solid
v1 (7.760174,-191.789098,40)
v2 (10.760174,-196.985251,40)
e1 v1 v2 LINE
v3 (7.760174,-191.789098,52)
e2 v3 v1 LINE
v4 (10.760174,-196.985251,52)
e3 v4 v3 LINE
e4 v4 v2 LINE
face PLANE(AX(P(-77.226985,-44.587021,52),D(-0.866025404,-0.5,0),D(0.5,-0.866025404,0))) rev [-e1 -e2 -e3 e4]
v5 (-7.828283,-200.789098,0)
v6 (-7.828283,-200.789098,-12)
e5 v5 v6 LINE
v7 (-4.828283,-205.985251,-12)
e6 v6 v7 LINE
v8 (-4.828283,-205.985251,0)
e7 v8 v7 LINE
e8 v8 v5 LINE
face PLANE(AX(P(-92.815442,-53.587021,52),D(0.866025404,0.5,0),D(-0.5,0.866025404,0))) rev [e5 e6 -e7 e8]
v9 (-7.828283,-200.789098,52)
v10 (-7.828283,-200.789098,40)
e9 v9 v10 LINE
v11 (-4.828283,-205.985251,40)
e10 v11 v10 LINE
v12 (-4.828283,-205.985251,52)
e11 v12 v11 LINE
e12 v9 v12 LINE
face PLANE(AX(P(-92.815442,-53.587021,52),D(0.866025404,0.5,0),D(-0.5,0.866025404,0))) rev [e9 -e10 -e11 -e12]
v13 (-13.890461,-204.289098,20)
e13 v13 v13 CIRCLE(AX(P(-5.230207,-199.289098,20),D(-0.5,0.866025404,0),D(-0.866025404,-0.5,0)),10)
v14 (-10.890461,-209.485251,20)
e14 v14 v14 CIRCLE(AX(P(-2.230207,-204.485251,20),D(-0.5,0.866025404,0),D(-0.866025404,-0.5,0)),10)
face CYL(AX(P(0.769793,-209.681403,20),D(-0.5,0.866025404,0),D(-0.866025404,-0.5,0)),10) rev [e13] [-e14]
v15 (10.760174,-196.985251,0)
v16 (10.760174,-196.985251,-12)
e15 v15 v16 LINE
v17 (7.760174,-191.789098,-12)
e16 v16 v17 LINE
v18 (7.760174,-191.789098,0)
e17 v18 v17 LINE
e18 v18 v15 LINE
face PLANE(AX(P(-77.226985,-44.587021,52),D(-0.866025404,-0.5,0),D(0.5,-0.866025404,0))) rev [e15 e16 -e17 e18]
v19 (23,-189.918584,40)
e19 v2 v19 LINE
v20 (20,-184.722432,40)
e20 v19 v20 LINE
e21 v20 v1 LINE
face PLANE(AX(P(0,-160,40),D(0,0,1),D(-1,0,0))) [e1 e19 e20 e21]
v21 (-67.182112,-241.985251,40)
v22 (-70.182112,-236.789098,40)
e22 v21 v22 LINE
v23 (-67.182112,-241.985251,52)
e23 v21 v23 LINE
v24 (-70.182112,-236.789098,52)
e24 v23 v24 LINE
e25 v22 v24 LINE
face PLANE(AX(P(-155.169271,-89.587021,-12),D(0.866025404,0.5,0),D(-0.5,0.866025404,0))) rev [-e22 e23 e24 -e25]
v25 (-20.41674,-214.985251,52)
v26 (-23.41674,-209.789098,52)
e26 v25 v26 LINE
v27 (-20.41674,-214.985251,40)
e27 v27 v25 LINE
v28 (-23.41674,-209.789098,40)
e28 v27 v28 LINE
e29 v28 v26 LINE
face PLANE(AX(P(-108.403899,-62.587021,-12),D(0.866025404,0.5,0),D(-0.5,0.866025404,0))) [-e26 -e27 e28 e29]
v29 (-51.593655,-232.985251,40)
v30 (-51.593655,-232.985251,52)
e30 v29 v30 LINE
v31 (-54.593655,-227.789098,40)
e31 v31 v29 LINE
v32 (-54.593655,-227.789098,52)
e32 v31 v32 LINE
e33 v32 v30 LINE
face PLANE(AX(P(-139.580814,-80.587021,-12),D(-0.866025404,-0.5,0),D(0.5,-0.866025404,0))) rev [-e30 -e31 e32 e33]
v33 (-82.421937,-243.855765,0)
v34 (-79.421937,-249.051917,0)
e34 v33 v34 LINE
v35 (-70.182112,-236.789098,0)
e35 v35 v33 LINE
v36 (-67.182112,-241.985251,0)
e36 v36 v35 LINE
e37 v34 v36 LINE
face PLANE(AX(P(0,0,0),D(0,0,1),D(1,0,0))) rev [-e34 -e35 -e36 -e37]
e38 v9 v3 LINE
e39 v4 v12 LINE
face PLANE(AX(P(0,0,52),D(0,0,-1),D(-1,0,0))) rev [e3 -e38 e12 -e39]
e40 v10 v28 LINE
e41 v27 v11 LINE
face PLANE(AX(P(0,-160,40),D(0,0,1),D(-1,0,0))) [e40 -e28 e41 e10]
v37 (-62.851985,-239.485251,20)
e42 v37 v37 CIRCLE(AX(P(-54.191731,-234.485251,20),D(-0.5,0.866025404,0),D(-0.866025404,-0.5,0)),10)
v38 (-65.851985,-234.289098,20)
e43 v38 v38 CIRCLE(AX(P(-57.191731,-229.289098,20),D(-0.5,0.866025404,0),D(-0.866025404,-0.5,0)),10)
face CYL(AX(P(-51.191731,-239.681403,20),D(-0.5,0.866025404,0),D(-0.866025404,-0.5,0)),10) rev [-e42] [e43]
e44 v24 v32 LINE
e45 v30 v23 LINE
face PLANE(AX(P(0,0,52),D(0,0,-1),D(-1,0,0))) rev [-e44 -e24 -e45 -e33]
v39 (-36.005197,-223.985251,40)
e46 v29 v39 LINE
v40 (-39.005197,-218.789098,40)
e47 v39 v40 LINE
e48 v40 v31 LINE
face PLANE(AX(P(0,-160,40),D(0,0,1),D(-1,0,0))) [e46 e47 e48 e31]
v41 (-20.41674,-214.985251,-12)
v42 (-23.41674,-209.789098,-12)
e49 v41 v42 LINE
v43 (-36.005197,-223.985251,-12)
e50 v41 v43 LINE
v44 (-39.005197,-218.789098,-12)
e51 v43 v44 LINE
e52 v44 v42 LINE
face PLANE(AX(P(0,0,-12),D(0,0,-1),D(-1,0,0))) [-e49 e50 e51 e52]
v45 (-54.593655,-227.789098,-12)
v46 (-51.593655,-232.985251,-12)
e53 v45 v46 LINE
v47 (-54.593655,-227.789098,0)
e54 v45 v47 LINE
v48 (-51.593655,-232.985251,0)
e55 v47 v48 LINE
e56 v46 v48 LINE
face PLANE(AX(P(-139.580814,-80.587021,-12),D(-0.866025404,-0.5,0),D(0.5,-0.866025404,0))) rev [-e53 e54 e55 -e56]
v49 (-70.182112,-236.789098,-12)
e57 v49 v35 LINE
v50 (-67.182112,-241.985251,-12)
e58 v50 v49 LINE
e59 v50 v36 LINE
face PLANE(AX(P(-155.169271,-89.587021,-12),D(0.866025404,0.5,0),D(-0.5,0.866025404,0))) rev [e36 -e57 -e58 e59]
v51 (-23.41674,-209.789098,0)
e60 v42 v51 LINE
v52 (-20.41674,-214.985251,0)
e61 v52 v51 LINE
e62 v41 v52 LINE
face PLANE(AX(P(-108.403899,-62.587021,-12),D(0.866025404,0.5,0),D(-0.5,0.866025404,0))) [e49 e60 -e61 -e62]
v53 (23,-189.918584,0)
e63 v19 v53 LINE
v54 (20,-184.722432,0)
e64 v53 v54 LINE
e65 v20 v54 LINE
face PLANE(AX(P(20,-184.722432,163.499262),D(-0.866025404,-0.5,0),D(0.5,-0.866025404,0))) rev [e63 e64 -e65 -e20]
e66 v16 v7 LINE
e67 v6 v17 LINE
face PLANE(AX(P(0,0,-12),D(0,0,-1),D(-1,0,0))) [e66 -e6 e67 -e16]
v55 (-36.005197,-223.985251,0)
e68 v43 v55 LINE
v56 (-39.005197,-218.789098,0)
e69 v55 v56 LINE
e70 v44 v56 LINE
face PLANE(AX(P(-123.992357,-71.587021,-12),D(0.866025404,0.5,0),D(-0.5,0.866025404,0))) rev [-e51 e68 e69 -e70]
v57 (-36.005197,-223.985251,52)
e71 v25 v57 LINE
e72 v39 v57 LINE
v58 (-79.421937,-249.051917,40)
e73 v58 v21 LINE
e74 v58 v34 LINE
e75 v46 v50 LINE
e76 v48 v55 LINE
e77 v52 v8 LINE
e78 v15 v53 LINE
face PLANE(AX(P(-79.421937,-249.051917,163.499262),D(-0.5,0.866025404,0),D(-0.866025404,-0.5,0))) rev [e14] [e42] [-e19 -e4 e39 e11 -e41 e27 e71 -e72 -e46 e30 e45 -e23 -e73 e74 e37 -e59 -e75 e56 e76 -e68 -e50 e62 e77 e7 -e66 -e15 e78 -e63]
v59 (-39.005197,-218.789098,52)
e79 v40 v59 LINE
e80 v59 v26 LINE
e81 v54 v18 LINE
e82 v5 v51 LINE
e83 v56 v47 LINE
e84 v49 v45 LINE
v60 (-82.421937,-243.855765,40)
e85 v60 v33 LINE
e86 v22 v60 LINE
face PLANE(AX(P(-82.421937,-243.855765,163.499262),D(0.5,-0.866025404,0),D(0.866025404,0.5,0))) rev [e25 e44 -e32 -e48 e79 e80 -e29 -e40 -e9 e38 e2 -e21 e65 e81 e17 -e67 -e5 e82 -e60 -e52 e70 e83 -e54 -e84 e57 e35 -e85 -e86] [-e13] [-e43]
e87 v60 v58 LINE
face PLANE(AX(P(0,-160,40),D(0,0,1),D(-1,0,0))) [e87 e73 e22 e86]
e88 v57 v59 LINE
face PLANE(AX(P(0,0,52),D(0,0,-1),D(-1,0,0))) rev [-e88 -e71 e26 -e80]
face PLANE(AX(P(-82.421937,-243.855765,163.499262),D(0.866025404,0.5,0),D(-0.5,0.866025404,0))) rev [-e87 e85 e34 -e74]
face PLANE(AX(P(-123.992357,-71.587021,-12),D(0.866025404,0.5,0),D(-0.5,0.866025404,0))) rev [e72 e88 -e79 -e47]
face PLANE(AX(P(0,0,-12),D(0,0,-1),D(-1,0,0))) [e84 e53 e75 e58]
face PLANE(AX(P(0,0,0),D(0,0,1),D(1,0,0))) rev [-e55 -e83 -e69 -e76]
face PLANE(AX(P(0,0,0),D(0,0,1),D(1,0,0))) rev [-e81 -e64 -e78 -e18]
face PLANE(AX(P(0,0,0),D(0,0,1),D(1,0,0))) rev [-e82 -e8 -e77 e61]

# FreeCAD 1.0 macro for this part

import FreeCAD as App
import Part
import Sketcher
from FreeCAD import Vector
Q = App.Units.Quantity


def add_polygon(sketch, points):
    """Adds a closed chain of lines whose ends are joined by coincident constraints."""
    first, n = sketch.GeometryCount, len(points)
    for a, b in zip(points, points[1:] + points[:1]):
        sketch.addGeometry(Part.LineSegment(App.Vector(*a, 0), App.Vector(*b, 0)), False)
    for i in range(n):
        sketch.addConstraint(Sketcher.Constraint("Coincident", first + i, 2, first + (i + 1) % n, 1))

doc = App.newDocument("Part")
body = doc.addObject("PartDesign::Body", "Body")

sketch1 = doc.addObject("Sketcher::SketchObject", "Sketch")
body.addObject(sketch1)
sketch1.AttachmentSupport = (doc.XY_Plane, [""])
sketch1.MapMode = "FlatFace"
add_polygon(sketch1, [(20, -185), (-82, -244), (-79, -249), (23, -190)])
sketch1.addConstraint([
    Sketcher.Constraint("Perpendicular", 0, 1),
    Sketcher.Constraint("Perpendicular", 1, 2),
    Sketcher.Constraint("Perpendicular", 2, 3),
    Sketcher.Constraint("Angle", 0, Q("-150 deg")),
    Sketcher.Constraint("Distance", 1, 6.0),
    Sketcher.Constraint("DistanceX", -1, 1, 2, 2, 23.0),
    Sketcher.Constraint("DistanceY", 3, 2, -1, 1, 184.722432),
    Sketcher.Constraint("DistanceY", 0, 2, 2, 2, 53.937181),
])
pad1 = doc.addObject("PartDesign::Pad", "Pad")
body.addObject(pad1)
pad1.Profile = sketch1
pad1.Length = 40

sketch2 = doc.addObject("Sketcher::SketchObject", "Sketch001")
body.addObject(sketch2)
sketch2.AttachmentSupport = (doc.XY_Plane, [""])
sketch2.MapMode = "FlatFace"
add_polygon(sketch2, [(-5, -206), (-8, -201), (8, -192), (11, -197)])
add_polygon(sketch2, [(-39, -219), (-23, -210), (-20, -215), (-36, -224)])
add_polygon(sketch2, [(-70, -237), (-55, -228), (-52, -233), (-67, -242)])
sketch2.addConstraint([
    Sketcher.Constraint("Perpendicular", 0, 1),
    Sketcher.Constraint("Perpendicular", 1, 2),
    Sketcher.Constraint("Perpendicular", 2, 3),
    Sketcher.Constraint("Parallel", 3, 4),
    Sketcher.Constraint("Perpendicular", 4, 5),
    Sketcher.Constraint("Perpendicular", 5, 6),
    Sketcher.Constraint("Perpendicular", 6, 7),
    Sketcher.Constraint("Perpendicular", 7, 8),
    Sketcher.Constraint("Perpendicular", 8, 9),
    Sketcher.Constraint("Perpendicular", 9, 10),
    Sketcher.Constraint("Perpendicular", 10, 11),
    Sketcher.Constraint("Equal", 3, 4),
    Sketcher.Constraint("Equal", 2, 5),
    Sketcher.Constraint("Equal", 6, 8),
    Sketcher.Constraint("Equal", 7, 9),
    Sketcher.Constraint("Angle", 0, Q("120 deg")),
    Sketcher.Constraint("Distance", 0, 6.0),
    Sketcher.Constraint("Distance", 1, 18.0),
    Sketcher.Constraint("DistanceY", 4, 2, 0, 2, 9.0),
    Sketcher.Constraint("DistanceY", 8, 2, 7, 2, 9.0),
    Sketcher.Constraint("DistanceY", 0, 2, -1, 1, 200.789098),
    Sketcher.Constraint("DistanceX", 4, 2, -1, 1, 23.41674),
    Sketcher.Constraint("DistanceX", 10, 2, -1, 1, 67.182112),
    Sketcher.Constraint("DistanceX", 6, 2, 2, 2, 46.765372),
])
pad2 = doc.addObject("PartDesign::Pad", "Pad001")
body.addObject(pad2)
pad2.Profile = sketch2
pad2.Type = "TwoLengths"
pad2.Length = 12
pad2.Length2 = 52
pad2.Reversed = True

sketch3 = doc.addObject("Sketcher::SketchObject", "Sketch002")
body.addObject(sketch3)
sketch3.Placement = App.Placement(Vector(84.987159, -147.202078, 0), App.Rotation(Vector(0.866025404, 0.5, 0), Vector(0, 0, -1), Vector(-0.5, 0.866025404, 0), "ZXY"))
sketch3.addGeometry([
    Part.Circle(Vector(-164, -20, 0), Vector(0, 0, 1), 10),
    Part.Circle(Vector(-104, -20, 0), Vector(0, 0, 1), 10),
], False)
sketch3.addConstraint([
    Sketcher.Constraint("Equal", 0, 1),
    Sketcher.Constraint("Horizontal", 0, 3, 1, 3),
    Sketcher.Constraint("Diameter", 0, 20.0),
    Sketcher.Constraint("DistanceY", 0, 3, -1, 1, 20.0),
    Sketcher.Constraint("DistanceX", 0, 3, 1, 3, 60.0),
    Sketcher.Constraint("DistanceX", 0, 3, -1, 1, 164.174041),
])
pocket1 = doc.addObject("PartDesign::Pocket", "Pocket")
body.addObject(pocket1)
pocket1.Profile = sketch3
pocket1.Length = 12

doc.recompute()
